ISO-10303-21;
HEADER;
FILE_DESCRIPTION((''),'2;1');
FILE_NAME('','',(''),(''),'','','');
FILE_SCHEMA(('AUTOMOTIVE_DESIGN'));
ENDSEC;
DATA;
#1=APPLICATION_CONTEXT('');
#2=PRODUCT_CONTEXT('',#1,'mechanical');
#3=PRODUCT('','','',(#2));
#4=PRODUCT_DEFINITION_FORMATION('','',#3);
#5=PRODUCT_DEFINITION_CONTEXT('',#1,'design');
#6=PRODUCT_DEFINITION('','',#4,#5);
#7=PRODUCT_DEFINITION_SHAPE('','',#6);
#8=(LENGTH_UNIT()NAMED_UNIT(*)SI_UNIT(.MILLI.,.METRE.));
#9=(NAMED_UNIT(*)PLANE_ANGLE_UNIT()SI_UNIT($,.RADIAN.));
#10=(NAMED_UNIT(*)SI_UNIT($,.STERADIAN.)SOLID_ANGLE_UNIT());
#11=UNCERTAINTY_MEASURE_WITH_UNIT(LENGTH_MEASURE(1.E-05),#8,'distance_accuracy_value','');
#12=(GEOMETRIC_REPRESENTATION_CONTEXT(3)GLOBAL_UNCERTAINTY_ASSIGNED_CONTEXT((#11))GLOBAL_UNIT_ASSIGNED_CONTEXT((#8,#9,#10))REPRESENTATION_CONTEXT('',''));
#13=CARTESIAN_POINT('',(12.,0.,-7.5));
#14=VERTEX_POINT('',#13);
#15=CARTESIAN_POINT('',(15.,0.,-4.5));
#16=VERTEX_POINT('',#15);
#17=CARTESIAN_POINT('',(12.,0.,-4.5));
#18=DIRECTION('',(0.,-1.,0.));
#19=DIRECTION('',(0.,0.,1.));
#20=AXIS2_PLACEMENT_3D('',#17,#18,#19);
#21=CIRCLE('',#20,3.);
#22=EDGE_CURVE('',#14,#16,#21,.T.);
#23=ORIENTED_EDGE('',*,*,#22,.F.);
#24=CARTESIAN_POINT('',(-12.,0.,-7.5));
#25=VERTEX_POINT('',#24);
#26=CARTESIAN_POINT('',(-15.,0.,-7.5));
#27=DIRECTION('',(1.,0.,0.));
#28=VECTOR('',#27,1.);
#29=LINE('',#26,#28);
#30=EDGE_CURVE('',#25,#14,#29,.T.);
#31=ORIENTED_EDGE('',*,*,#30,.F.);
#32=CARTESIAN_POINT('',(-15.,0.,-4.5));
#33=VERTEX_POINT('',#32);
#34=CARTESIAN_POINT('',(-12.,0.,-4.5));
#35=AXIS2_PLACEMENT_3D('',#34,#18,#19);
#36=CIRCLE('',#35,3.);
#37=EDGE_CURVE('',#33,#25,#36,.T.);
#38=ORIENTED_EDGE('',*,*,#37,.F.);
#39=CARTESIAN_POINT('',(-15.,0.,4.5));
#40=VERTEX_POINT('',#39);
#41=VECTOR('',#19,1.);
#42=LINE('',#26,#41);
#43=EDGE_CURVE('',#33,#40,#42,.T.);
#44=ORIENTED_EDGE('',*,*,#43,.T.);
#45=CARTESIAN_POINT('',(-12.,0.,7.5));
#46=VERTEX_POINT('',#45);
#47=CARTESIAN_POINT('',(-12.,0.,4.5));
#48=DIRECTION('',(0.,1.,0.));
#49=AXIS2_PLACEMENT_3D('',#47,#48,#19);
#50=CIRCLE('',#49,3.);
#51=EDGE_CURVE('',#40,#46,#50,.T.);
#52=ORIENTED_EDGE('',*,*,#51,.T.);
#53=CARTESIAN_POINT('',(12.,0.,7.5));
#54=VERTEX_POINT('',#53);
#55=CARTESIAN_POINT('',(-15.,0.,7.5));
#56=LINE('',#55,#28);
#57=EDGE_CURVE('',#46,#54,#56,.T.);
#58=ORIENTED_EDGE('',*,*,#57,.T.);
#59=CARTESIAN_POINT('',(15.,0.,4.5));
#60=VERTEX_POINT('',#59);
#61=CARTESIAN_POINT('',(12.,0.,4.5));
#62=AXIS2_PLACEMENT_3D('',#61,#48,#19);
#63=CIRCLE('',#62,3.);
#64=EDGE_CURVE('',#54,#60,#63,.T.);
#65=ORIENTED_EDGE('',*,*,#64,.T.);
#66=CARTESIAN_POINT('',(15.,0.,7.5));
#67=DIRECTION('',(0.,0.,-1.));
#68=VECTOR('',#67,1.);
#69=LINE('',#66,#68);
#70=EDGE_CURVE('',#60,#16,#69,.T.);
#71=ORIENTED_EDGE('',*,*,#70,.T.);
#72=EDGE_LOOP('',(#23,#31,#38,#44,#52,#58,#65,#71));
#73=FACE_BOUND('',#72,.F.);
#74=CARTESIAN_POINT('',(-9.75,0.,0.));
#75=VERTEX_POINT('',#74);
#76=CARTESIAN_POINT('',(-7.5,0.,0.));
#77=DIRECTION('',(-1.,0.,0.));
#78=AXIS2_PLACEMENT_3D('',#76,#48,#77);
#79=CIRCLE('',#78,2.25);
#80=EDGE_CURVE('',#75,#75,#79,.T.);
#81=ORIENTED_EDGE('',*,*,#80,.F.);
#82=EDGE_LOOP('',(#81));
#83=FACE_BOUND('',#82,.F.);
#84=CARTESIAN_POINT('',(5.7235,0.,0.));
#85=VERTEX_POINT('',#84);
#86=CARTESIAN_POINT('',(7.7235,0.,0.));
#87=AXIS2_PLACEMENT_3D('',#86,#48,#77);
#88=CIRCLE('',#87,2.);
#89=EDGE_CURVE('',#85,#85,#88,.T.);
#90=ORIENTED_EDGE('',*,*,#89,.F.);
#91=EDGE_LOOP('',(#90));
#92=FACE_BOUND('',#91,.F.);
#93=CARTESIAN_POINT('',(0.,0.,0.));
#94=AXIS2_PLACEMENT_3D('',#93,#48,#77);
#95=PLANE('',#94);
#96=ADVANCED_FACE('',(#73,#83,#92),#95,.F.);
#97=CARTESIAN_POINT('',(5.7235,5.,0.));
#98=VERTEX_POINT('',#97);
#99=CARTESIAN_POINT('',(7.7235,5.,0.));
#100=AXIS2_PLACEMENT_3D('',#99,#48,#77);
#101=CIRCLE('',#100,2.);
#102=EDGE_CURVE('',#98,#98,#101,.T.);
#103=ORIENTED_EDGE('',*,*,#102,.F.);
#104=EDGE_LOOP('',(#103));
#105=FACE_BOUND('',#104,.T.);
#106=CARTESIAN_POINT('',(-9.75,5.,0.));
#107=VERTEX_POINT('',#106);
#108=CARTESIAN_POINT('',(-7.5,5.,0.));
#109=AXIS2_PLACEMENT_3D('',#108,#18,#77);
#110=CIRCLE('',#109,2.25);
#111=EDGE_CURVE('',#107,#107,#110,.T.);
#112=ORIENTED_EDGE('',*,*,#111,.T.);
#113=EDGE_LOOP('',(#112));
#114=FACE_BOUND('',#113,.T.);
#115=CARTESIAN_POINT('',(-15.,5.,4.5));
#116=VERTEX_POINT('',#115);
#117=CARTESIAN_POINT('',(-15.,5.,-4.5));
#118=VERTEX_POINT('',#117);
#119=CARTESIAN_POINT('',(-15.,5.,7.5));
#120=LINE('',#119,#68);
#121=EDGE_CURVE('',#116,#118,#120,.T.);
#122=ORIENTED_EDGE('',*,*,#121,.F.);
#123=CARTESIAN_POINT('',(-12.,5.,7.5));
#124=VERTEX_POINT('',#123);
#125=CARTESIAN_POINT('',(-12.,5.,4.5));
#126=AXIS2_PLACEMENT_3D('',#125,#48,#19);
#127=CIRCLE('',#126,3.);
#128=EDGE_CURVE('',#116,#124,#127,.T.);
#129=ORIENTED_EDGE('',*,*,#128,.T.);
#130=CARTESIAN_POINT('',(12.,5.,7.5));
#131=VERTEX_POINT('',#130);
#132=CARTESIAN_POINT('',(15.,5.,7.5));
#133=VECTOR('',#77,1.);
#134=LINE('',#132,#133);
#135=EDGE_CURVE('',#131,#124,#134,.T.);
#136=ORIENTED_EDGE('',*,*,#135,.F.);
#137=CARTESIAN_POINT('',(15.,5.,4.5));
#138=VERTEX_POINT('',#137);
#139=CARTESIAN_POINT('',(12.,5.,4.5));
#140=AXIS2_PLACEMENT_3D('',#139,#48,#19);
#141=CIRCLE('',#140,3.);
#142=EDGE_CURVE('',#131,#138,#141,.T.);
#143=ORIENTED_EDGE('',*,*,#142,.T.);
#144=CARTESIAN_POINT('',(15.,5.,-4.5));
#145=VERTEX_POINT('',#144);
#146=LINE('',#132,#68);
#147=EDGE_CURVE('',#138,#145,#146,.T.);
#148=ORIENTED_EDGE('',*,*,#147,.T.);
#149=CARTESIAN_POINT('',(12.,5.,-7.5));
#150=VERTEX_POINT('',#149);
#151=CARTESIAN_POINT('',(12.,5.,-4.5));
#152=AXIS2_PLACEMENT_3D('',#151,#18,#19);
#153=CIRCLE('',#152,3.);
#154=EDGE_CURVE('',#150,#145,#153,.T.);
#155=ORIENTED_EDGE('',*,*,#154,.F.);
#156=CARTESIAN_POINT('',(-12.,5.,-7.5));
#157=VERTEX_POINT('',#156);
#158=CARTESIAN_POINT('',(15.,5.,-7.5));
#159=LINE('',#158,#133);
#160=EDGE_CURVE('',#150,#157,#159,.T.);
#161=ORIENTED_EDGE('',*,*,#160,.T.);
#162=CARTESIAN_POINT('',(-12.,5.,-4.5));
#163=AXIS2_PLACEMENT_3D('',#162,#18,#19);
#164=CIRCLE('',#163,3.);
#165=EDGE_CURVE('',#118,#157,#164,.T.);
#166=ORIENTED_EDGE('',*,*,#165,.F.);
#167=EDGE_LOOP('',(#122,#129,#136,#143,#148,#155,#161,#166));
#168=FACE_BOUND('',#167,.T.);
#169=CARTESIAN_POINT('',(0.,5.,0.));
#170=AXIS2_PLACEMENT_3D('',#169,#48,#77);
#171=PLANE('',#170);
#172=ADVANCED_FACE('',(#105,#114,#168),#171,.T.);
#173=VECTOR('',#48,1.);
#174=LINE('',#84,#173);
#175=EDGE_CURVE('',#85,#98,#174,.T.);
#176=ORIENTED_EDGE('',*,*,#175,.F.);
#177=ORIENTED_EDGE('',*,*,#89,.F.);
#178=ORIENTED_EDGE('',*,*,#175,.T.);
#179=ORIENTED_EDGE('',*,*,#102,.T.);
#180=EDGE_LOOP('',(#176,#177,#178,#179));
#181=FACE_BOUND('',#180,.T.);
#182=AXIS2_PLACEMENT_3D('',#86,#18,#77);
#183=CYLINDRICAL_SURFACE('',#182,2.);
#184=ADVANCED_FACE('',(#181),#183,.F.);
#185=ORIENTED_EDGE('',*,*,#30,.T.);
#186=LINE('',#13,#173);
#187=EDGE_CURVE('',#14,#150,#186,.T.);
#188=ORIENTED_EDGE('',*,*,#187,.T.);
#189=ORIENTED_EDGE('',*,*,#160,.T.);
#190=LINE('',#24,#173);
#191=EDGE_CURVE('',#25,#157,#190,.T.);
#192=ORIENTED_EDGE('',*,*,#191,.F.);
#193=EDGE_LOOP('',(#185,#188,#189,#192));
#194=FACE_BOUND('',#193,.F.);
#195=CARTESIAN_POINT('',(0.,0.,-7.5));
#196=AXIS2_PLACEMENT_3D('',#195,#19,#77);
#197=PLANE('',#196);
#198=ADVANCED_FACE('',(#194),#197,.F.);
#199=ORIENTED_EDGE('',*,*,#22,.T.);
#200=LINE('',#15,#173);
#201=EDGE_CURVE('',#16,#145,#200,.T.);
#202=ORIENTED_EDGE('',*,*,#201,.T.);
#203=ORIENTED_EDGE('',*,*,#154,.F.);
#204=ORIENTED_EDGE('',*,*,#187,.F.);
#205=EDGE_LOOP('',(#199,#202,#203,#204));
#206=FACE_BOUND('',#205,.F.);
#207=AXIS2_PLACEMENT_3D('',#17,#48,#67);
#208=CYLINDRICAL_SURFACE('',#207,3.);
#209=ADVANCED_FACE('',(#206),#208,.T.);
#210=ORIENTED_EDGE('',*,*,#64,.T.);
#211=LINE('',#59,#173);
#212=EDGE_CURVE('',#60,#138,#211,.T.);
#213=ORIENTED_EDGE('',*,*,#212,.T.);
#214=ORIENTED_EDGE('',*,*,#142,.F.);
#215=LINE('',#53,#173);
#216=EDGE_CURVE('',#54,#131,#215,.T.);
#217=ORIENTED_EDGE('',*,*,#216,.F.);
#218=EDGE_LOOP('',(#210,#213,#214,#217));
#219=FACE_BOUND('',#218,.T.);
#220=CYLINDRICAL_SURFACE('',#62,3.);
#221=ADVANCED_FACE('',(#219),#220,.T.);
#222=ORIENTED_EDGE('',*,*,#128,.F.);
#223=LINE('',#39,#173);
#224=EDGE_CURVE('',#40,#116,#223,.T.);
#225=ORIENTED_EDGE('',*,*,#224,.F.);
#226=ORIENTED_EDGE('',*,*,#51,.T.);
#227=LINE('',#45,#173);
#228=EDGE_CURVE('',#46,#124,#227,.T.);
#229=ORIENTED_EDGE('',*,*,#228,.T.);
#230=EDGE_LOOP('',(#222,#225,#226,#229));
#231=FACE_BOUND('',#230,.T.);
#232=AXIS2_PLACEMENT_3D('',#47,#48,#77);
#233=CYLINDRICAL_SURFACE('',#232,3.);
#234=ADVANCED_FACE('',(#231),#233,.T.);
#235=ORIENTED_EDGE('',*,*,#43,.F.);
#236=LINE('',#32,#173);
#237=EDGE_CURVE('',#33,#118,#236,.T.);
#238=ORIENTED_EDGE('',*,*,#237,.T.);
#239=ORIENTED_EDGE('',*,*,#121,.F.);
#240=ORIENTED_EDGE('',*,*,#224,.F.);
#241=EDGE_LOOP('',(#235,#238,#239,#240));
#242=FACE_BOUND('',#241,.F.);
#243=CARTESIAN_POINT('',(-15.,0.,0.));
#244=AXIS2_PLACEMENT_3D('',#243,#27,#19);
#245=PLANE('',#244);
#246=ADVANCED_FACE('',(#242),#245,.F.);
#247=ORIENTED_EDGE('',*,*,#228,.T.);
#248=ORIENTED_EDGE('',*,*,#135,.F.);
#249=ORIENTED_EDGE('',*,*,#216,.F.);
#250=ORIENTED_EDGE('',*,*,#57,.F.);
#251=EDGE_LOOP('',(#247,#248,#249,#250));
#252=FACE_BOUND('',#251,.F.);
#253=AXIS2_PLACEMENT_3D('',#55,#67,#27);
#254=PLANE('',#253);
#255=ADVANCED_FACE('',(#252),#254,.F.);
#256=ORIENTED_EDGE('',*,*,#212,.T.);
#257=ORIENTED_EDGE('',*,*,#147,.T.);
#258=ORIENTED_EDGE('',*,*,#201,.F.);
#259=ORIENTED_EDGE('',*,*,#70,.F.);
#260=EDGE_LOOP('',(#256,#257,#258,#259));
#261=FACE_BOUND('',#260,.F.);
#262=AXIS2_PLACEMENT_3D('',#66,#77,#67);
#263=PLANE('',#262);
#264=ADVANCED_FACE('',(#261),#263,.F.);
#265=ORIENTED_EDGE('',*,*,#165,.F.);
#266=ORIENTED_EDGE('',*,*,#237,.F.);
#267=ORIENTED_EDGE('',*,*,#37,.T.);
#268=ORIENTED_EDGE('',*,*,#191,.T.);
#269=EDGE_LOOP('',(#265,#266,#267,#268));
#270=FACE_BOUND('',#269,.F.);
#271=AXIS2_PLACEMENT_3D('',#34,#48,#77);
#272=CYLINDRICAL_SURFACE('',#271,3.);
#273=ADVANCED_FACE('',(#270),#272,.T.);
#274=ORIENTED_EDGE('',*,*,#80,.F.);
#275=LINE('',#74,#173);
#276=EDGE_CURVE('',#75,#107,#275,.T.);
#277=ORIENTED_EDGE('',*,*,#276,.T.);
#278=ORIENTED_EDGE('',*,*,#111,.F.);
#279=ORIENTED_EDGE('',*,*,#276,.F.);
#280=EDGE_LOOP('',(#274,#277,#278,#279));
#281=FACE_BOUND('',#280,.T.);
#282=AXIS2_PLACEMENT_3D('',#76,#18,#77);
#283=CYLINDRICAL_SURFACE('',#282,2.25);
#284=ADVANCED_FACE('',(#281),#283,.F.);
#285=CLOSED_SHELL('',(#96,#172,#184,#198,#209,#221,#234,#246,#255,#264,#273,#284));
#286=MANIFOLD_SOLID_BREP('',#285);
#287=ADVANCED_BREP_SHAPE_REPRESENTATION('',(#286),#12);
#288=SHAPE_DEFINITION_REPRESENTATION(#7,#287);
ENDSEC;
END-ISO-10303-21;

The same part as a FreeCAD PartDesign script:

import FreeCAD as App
import Part
import Sketcher

V = App.Vector


def edges_at(feature, points):
    """Names of the edges that pass closest to the given points."""
    edges = feature.Shape.Edges
    near = lambda p: min(range(len(edges)), key=lambda i: edges[i].distToShape(Part.Vertex(*p))[0])
    return sorted({f"Edge{near(p) + 1}" for p in points})

doc = App.newDocument("Part")
body = doc.addObject("PartDesign::Body", "Body")

# Sketch on XZ plane
sketch1 = body.newObject("Sketcher::SketchObject", "Sketch")
sketch1.AttachmentSupport = (doc.getObject("XZ_Plane"), [""])
sketch1.MapMode = "FlatFace"
sketch1.addGeometry([
    Part.LineSegment(V(-15, 7.5, 0), V(15, 7.5, 0)),  # 0
    Part.LineSegment(V(15, 7.5, 0), V(15, -7.5, 0)),  # 1
    Part.LineSegment(V(15, -7.5, 0), V(-15, -7.5, 0)),  # 2
    Part.LineSegment(V(-15, -7.5, 0), V(-15, 7.5, 0)),  # 3
    Part.Circle(V(-7.5, 0, 0), V(0, 0, 1), 2.25),  # 4
    Part.Circle(V(7.7235, 0, 0), V(0, 0, 1), 2),  # 5
], False)
sketch1.addConstraint([
    Sketcher.Constraint("Coincident", 0, 2, 1, 1),
    Sketcher.Constraint("Coincident", 1, 2, 2, 1),
    Sketcher.Constraint("Coincident", 2, 2, 3, 1),
    Sketcher.Constraint("Coincident", 3, 2, 0, 1),
    Sketcher.Constraint("Horizontal", 0),
    Sketcher.Constraint("Vertical", 1),
    Sketcher.Constraint("Horizontal", 2),
    Sketcher.Constraint("Vertical", 3),
    Sketcher.Constraint("Symmetric", 0, 2, 2, 2, -1, 1),
    Sketcher.Constraint("PointOnObject", 4, 3, -1),
    Sketcher.Constraint("PointOnObject", 5, 3, -1),
    Sketcher.Constraint("Diameter", 5, 4.0),
    Sketcher.Constraint("Diameter", 4, 4.5),
    Sketcher.Constraint("DistanceX", 0, 1, 0, 2, 30.0),
    Sketcher.Constraint("DistanceY", 1, 2, 1, 1, 15.0),
    Sketcher.Constraint("DistanceX", 4, 3, -1, 1, 7.5),
    Sketcher.Constraint("DistanceX", -1, 1, 5, 3, 7.7235),
])
pad1 = body.newObject("PartDesign::Pad", "Pad")
pad1.Profile = sketch1
pad1.Length = 5
pad1.Reversed = True
doc.recompute()

fillet = body.newObject("PartDesign::Fillet", "Fillet")
fillet.Base = (pad1, edges_at(pad1, [
    (-15, 2.5, 7.5),
    (-15, 2.5, -7.5),
    (15, 2.5, 7.5),
    (15, 2.5, -7.5),
]))
fillet.Radius = 3

doc.recompute()
